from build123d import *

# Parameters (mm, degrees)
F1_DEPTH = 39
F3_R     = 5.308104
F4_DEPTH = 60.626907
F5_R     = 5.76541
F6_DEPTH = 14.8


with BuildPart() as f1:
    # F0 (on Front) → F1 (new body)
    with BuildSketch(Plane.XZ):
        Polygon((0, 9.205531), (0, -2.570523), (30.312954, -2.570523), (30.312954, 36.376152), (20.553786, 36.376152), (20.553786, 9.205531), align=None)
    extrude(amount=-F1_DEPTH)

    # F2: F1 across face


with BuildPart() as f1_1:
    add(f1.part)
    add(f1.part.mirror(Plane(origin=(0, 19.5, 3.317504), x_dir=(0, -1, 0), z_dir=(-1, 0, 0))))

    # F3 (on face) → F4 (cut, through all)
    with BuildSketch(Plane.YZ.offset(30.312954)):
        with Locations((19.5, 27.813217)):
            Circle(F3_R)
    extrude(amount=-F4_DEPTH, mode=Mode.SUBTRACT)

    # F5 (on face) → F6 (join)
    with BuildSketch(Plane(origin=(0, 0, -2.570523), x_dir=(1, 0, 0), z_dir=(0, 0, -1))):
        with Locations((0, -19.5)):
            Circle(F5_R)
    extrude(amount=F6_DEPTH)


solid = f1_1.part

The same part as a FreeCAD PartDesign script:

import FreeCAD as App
import Part
import Sketcher

V = App.Vector

doc = App.newDocument("Part")
body = doc.addObject("PartDesign::Body", "Body")

sketch1 = body.newObject("Sketcher::SketchObject", "Sketch")
sketch1.AttachmentSupport = (doc.getObject("XZ_Plane"), [""])
sketch1.MapMode = "FlatFace"
sketch1.addGeometry(Part.LineSegment(V(0, 9, 0), V(0, -3, 0)), False)
sketch1.addGeometry(Part.LineSegment(V(0, -3, 0), V(30, -3, 0)), False)
sketch1.addGeometry(Part.LineSegment(V(30, -3, 0), V(30, 36, 0)), False)
sketch1.addGeometry(Part.LineSegment(V(30, 36, 0), V(21, 36, 0)), False)
sketch1.addGeometry(Part.LineSegment(V(21, 36, 0), V(21, 9, 0)), False)
sketch1.addGeometry(Part.LineSegment(V(21, 9, 0), V(0, 9, 0)), False)
sketch1.addConstraint(Sketcher.Constraint("Coincident", 0, 2, 1, 1))
sketch1.addConstraint(Sketcher.Constraint("Coincident", 1, 2, 2, 1))
sketch1.addConstraint(Sketcher.Constraint("Coincident", 2, 2, 3, 1))
sketch1.addConstraint(Sketcher.Constraint("Coincident", 3, 2, 4, 1))
sketch1.addConstraint(Sketcher.Constraint("Coincident", 4, 2, 5, 1))
sketch1.addConstraint(Sketcher.Constraint("Coincident", 5, 2, 0, 1))
sketch1.addConstraint(Sketcher.Constraint("Vertical", 0))
sketch1.addConstraint(Sketcher.Constraint("Horizontal", 1))
sketch1.addConstraint(Sketcher.Constraint("Vertical", 2))
sketch1.addConstraint(Sketcher.Constraint("Horizontal", 3))
sketch1.addConstraint(Sketcher.Constraint("Vertical", 4))
sketch1.addConstraint(Sketcher.Constraint("Horizontal", 5))
sketch1.addConstraint(Sketcher.Constraint("PointOnObject", 0, 2, -2))
sketch1.addConstraint(Sketcher.Constraint("DistanceX", 3, 2, 3, 1, 9.759168))
sketch1.addConstraint(Sketcher.Constraint("DistanceY", 4, 2, 4, 1, 27.170621))
sketch1.addConstraint(Sketcher.Constraint("DistanceX", 1, 1, 1, 2, 30.312954))
sketch1.addConstraint(Sketcher.Constraint("DistanceY", 0, 2, 0, 1, 11.776054))
sketch1.addConstraint(Sketcher.Constraint("DistanceY", -1, 1, 2, 2, 36.376152))
pad1 = body.newObject("PartDesign::Pad", "Pad")
pad1.Profile = sketch1
pad1.Length = 39
pad1.Reversed = True
body2 = doc.addObject("PartDesign::Body", "Body001")
doc.recompute()

body2.BaseFeature = body
doc.recompute()

mirroring = doc.addObject("Part::Mirroring", "Mirroring")
mirroring.Source = body
mirroring.Base = V(0, 19.5, 3.317504)
mirroring.Normal = V(-1, 0, 0)
body3 = doc.addObject("PartDesign::Body", "Body002")
body3.BaseFeature = mirroring
boolean = body2.newObject("PartDesign::Boolean", "Boolean")
boolean.Type = "Fuse"
boolean.addObjects([body3])
doc.recompute()

sketch2 = body2.newObject("Sketcher::SketchObject", "Sketch001")
sketch2.AttachmentSupport = (doc.getObject("YZ_Plane001"), [""])
sketch2.MapMode = "FlatFace"
sketch2.AttachmentOffset = App.Placement(V(0, 0, 30.312954), App.Rotation())
sketch2.addGeometry(Part.Circle(V(20, 28, 0), V(0, 0, 1), 5), False)
sketch2.addConstraint(Sketcher.Constraint("DistanceX", -1, 1, 0, 3, 19.5))
sketch2.addConstraint(Sketcher.Constraint("Diameter", 0, 10.616208))
sketch2.addConstraint(Sketcher.Constraint("DistanceY", -1, 1, 0, 3, 27.813217))
pocket1 = body2.newObject("PartDesign::Pocket", "Pocket")
pocket1.Profile = sketch2
pocket1.Type = "ThroughAll"

sketch3 = body2.newObject("Sketcher::SketchObject", "Sketch002")
sketch3.AttachmentSupport = (doc.getObject("XY_Plane001"), [""])
sketch3.MapMode = "FlatFace"
sketch3.AttachmentOffset = App.Placement(V(0, 0, -2.570523), App.Rotation())
sketch3.addGeometry(Part.Circle(V(0, 20, 0), V(0, 0, 1), 6), False)
sketch3.addConstraint(Sketcher.Constraint("PointOnObject", 0, 3, -2))
sketch3.addConstraint(Sketcher.Constraint("DistanceY", -1, 1, 0, 3, 19.5))
sketch3.addConstraint(Sketcher.Constraint("Diameter", 0, 11.53082))
pad2 = body2.newObject("PartDesign::Pad", "Pad001")
pad2.Profile = sketch3
pad2.Length = 14.8
pad2.Reversed = True
mirroring.Visibility = False

doc.recompute()
